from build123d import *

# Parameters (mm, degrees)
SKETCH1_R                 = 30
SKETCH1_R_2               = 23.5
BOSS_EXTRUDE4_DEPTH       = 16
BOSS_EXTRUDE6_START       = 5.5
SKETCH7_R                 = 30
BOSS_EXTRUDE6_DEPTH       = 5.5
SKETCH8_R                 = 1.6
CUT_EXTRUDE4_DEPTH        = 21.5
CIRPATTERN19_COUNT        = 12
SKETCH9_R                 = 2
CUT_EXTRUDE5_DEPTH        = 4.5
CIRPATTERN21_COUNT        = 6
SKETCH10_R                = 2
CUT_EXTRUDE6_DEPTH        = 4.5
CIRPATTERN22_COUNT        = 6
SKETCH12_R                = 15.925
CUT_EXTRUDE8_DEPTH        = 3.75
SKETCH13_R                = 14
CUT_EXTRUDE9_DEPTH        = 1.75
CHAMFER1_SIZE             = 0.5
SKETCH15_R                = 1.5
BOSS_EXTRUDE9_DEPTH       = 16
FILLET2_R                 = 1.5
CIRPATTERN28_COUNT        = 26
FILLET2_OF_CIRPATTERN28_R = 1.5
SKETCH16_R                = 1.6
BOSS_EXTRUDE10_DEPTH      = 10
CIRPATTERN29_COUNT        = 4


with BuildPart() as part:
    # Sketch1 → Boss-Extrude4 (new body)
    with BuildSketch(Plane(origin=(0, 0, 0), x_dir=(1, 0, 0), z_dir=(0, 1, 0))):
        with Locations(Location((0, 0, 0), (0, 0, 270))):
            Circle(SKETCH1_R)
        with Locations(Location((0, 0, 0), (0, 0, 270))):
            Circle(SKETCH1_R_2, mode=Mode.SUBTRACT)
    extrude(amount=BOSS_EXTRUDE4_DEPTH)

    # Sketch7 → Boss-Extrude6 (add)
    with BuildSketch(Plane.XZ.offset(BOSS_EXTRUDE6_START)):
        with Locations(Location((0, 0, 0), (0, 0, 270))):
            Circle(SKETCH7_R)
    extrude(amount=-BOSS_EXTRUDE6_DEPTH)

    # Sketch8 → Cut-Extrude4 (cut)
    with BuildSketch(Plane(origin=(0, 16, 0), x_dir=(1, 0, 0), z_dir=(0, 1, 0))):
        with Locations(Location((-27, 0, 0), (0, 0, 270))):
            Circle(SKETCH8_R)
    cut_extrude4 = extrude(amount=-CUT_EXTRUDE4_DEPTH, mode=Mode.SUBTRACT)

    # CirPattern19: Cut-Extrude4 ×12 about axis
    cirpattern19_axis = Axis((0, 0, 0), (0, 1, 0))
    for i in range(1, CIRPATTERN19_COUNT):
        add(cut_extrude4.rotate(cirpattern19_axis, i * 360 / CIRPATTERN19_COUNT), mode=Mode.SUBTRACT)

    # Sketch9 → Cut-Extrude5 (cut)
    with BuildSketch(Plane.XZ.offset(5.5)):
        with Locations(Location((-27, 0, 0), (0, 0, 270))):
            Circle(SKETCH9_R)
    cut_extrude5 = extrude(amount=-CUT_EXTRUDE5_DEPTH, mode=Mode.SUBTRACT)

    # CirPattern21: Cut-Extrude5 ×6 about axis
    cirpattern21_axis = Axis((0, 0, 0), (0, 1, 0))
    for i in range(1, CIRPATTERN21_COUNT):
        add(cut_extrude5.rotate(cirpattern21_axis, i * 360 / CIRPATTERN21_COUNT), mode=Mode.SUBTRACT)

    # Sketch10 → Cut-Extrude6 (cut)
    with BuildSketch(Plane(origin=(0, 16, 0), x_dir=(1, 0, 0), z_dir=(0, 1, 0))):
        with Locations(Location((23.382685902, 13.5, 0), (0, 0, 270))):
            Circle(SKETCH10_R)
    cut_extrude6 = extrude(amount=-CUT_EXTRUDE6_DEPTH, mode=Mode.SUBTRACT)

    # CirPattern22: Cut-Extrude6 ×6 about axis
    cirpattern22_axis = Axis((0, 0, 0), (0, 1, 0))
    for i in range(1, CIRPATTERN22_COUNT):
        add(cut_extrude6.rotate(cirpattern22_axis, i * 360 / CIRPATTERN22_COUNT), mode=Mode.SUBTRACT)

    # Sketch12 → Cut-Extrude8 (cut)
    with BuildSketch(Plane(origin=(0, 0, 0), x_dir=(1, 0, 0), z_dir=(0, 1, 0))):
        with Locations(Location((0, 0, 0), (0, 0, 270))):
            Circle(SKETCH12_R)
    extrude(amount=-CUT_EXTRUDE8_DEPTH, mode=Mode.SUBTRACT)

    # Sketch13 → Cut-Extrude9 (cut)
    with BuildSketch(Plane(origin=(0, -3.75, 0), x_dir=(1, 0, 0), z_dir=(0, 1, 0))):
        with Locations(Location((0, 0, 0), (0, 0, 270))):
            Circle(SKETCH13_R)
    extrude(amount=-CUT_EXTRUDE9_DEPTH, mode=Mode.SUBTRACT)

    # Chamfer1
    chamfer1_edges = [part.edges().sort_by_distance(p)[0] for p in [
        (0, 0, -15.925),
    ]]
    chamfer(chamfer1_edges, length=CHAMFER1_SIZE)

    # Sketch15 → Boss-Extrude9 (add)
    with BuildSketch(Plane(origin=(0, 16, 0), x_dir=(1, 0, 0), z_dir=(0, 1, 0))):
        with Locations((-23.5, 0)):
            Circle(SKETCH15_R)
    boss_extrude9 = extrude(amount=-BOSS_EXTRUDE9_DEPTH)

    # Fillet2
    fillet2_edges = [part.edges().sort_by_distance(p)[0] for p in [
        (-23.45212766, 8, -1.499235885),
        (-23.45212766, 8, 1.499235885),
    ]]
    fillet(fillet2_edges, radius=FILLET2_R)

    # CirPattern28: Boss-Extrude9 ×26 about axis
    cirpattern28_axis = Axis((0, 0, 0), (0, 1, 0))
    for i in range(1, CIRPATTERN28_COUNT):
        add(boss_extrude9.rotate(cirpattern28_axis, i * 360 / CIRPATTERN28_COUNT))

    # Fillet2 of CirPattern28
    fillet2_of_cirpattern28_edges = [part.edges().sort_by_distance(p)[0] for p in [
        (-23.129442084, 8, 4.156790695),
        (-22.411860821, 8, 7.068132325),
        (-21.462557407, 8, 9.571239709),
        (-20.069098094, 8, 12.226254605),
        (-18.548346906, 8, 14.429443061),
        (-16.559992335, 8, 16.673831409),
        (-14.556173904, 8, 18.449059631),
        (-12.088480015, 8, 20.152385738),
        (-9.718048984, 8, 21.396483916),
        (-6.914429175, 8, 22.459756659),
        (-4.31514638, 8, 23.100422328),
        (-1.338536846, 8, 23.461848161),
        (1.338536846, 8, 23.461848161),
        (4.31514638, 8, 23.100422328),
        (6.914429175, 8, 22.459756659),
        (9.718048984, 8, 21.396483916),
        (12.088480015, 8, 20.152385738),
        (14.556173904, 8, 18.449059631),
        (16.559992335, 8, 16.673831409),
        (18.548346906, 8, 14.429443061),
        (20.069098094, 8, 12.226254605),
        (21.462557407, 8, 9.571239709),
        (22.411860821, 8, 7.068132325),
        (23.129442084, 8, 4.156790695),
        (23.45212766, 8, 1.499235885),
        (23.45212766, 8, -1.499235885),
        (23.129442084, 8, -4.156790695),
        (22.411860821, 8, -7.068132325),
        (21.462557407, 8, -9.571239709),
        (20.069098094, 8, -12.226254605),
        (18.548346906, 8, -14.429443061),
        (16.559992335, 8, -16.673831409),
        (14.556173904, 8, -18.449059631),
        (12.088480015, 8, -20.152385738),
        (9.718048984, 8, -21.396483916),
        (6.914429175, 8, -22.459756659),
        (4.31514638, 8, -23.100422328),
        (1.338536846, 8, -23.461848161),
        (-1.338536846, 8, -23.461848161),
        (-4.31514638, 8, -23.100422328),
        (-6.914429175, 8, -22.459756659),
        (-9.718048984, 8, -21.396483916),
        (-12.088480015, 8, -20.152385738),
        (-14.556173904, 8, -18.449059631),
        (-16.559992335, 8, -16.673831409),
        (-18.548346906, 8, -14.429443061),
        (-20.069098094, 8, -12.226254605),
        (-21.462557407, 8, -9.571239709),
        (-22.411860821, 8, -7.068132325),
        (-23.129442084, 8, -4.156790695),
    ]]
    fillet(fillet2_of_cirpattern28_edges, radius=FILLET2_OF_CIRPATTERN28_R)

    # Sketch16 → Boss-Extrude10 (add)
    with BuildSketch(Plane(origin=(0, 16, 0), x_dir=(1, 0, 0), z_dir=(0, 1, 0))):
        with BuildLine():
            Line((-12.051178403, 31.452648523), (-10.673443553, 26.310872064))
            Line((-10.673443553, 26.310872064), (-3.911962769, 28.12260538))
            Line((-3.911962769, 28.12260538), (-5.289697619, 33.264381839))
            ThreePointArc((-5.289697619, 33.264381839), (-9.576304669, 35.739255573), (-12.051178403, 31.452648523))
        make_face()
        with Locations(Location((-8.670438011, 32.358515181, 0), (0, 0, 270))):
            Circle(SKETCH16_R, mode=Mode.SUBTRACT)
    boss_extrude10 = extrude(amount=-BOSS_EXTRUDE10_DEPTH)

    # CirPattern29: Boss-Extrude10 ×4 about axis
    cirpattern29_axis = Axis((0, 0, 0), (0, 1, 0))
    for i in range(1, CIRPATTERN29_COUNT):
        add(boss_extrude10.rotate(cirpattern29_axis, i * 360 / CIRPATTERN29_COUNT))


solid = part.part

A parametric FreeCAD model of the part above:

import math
import FreeCAD as App
import Part
import Sketcher
Q = App.Units.Quantity


def edges_at(feature, points):
    """Names of the edges that pass closest to the given points."""
    edges = feature.Shape.Edges
    near = lambda p: min(range(len(edges)), key=lambda i: edges[i].distToShape(Part.Vertex(*p))[0])
    return sorted({f"Edge{near(p) + 1}" for p in points})

doc = App.newDocument("Part")
body = doc.addObject("PartDesign::Body", "Body")

# Sketch on XZ plane
sketch1 = body.newObject("Sketcher::SketchObject", "Sketch")
sketch1.AttachmentSupport = (doc.getObject("XZ_Plane"), [""])
sketch1.MapMode = "FlatFace"
sketch1.addGeometry([
    Part.Circle(App.Vector(0, 0, 0), App.Vector(0, 0, 1), 30),
    Part.Circle(App.Vector(0, 0, 0), App.Vector(0, 0, 1), 24),
], False)
sketch1.addConstraint([
    Sketcher.Constraint("Coincident", 0, 3, -1, 1),
    Sketcher.Constraint("Coincident", 1, 3, -1, 1),
    Sketcher.Constraint("Diameter", 0, Q("60 mm")),
    Sketcher.Constraint("Diameter", 1, Q("47 mm")),
])
pad1 = body.newObject("PartDesign::Pad", "Pad")
pad1.Profile = sketch1
pad1.Length = 16
pad1.Reversed = True

# Sketch on XZ plane
sketch2 = body.newObject("Sketcher::SketchObject", "Sketch001")
sketch2.AttachmentSupport = (doc.getObject("XZ_Plane"), [""])
sketch2.MapMode = "FlatFace"
sketch2.AttachmentOffset = App.Placement(App.Vector(0, 0, 5.5), App.Rotation())
sketch2.addGeometry(Part.Circle(App.Vector(0, 0, 0), App.Vector(0, 0, 1), 30), False)
sketch2.addConstraint([
    Sketcher.Constraint("Coincident", 0, 3, -1, 1),
    Sketcher.Constraint("Diameter", 0, Q("60 mm")),
])
pad2 = body.newObject("PartDesign::Pad", "Pad001")
pad2.Profile = sketch2
pad2.Length = 5.5
pad2.Reversed = True

# Sketch on XZ plane
sketch3 = body.newObject("Sketcher::SketchObject", "Sketch002")
sketch3.AttachmentSupport = (doc.getObject("XZ_Plane"), [""])
sketch3.MapMode = "FlatFace"
sketch3.AttachmentOffset = App.Placement(App.Vector(0, 0, -16), App.Rotation())
sketch3.addGeometry(Part.Circle(App.Vector(-27, 0, 0), App.Vector(0, 0, 1), 1.6), False)
sketch3.addConstraint([
    Sketcher.Constraint("PointOnObject", 0, 3, -1),
    Sketcher.Constraint("Diameter", 0, Q("3.2 mm")),
    Sketcher.Constraint("DistanceX", 0, 3, -1, 1, Q("27 mm")),
])
pocket1 = body.newObject("PartDesign::Pocket", "Pocket")
pocket1.Profile = sketch3
pocket1.Length = 21.5
pocket1.Reversed = True
doc.recompute()

polarpattern = body.newObject("PartDesign::PolarPattern", "PolarPattern")
polarpattern.Originals = [pocket1]
polarpattern.Axis = (doc.getObject("Y_Axis"), [""])
polarpattern.Angle = 360
polarpattern.Occurrences = 12
body.Tip = polarpattern

# Sketch on XZ plane
sketch4 = body.newObject("Sketcher::SketchObject", "Sketch003")
sketch4.AttachmentSupport = (doc.getObject("XZ_Plane"), [""])
sketch4.MapMode = "FlatFace"
sketch4.AttachmentOffset = App.Placement(App.Vector(0, 0, 5.5), App.Rotation())
sketch4.addGeometry(Part.Circle(App.Vector(-27, 0, 0), App.Vector(0, 0, 1), 2), False)
sketch4.addConstraint([
    Sketcher.Constraint("PointOnObject", 0, 3, -1),
    Sketcher.Constraint("Diameter", 0, Q("4 mm")),
    Sketcher.Constraint("DistanceX", 0, 3, -1, 1, Q("27 mm")),
])
pocket2 = body.newObject("PartDesign::Pocket", "Pocket001")
pocket2.Profile = sketch4
pocket2.Length = 4.5
doc.recompute()

polarpattern2 = body.newObject("PartDesign::PolarPattern", "PolarPattern001")
polarpattern2.Originals = [pocket2]
polarpattern2.Axis = (doc.getObject("Y_Axis"), [""])
polarpattern2.Angle = 360
polarpattern2.Occurrences = 6
body.Tip = polarpattern2

# Sketch on XZ plane
sketch5 = body.newObject("Sketcher::SketchObject", "Sketch004")
sketch5.AttachmentSupport = (doc.getObject("XZ_Plane"), [""])
sketch5.MapMode = "FlatFace"
sketch5.AttachmentOffset = App.Placement(App.Vector(0, 0, -16), App.Rotation())
sketch5.addGeometry(Part.Circle(App.Vector(23.4, -13.5, 0), App.Vector(0, 0, 1), 2), False)
sketch5.addConstraint([
    Sketcher.Constraint("Diameter", 0, Q("4 mm")),
    Sketcher.Constraint("DistanceY", 0, 3, -1, 1, Q("13.5 mm")),
    Sketcher.Constraint("DistanceX", -1, 1, 0, 3, Q("23.382686 mm")),
])
pocket3 = body.newObject("PartDesign::Pocket", "Pocket002")
pocket3.Profile = sketch5
pocket3.Length = 4.5
pocket3.Reversed = True
doc.recompute()

polarpattern3 = body.newObject("PartDesign::PolarPattern", "PolarPattern002")
polarpattern3.Originals = [pocket3]
polarpattern3.Axis = (doc.getObject("Y_Axis"), [""])
polarpattern3.Angle = 360
polarpattern3.Occurrences = 6
body.Tip = polarpattern3

# Sketch on XZ plane
sketch6 = body.newObject("Sketcher::SketchObject", "Sketch005")
sketch6.AttachmentSupport = (doc.getObject("XZ_Plane"), [""])
sketch6.MapMode = "FlatFace"
sketch6.addGeometry(Part.Circle(App.Vector(0, 0, 0), App.Vector(0, 0, 1), 16), False)
sketch6.addConstraint([
    Sketcher.Constraint("Coincident", 0, 3, -1, 1),
    Sketcher.Constraint("Diameter", 0, Q("31.85 mm")),
])
pocket4 = body.newObject("PartDesign::Pocket", "Pocket003")
pocket4.Profile = sketch6
pocket4.Length = 3.75
pocket4.Reversed = True

# Sketch on XZ plane
sketch7 = body.newObject("Sketcher::SketchObject", "Sketch006")
sketch7.AttachmentSupport = (doc.getObject("XZ_Plane"), [""])
sketch7.MapMode = "FlatFace"
sketch7.AttachmentOffset = App.Placement(App.Vector(0, 0, 3.75), App.Rotation())
sketch7.addGeometry(Part.Circle(App.Vector(0, 0, 0), App.Vector(0, 0, 1), 14), False)
sketch7.addConstraint([
    Sketcher.Constraint("Coincident", 0, 3, -1, 1),
    Sketcher.Constraint("Diameter", 0, Q("28 mm")),
])
pocket5 = body.newObject("PartDesign::Pocket", "Pocket004")
pocket5.Profile = sketch7
pocket5.Length = 1.75
pocket5.Reversed = True
doc.recompute()

chamfer = body.newObject("PartDesign::Chamfer", "Chamfer")
chamfer.Base = (pocket5, edges_at(pocket5, [(0, 0, -15.925)]))
chamfer.Size = 0.5

# Sketch on XZ plane
sketch8 = body.newObject("Sketcher::SketchObject", "Sketch007")
sketch8.AttachmentSupport = (doc.getObject("XZ_Plane"), [""])
sketch8.MapMode = "FlatFace"
sketch8.AttachmentOffset = App.Placement(App.Vector(0, 0, -16), App.Rotation())
sketch8.addGeometry(Part.Circle(App.Vector(-23.5, 0, 0), App.Vector(0, 0, 1), 1.5), False)
sketch8.addConstraint([
    Sketcher.Constraint("PointOnObject", 0, 3, -1),
    Sketcher.Constraint("Diameter", 0, Q("3 mm")),
    Sketcher.Constraint("DistanceX", 0, 3, -1, 1, Q("23.5 mm")),
])
pad3 = body.newObject("PartDesign::Pad", "Pad002")
pad3.Profile = sketch8
pad3.Length = 16
doc.recompute()

fillet = body.newObject("PartDesign::Fillet", "Fillet")
fillet.Base = (pad3, edges_at(pad3, [(-23.452, 8, -1.499), (-23.452, 8, 1.499)]))
fillet.Radius = 1.5
doc.recompute()

polarpattern4 = body.newObject("PartDesign::PolarPattern", "PolarPattern003")
polarpattern4.Originals = [pad3]
polarpattern4.Axis = (doc.getObject("Y_Axis"), [""])
polarpattern4.Angle = 360
polarpattern4.Occurrences = 26
body.Tip = polarpattern4
doc.recompute()

fillet2 = body.newObject("PartDesign::Fillet", "Fillet001")
fillet2.Base = (polarpattern4, edges_at(polarpattern4, [
    (-23.129, 8, 4.157),
    (-22.412, 8, 7.068),
    (-21.463, 8, 9.571),
    (-20.069, 8, 12.226),
    (-18.548, 8, 14.429),
    (-16.56, 8, 16.674),
    (-14.556, 8, 18.449),
    (-12.088, 8, 20.152),
    (-9.718, 8, 21.396),
    (-6.914, 8, 22.46),
    (-4.315, 8, 23.1),
    (-1.339, 8, 23.462),
    (1.339, 8, 23.462),
    (4.315, 8, 23.1),
    (6.914, 8, 22.46),
    (9.718, 8, 21.396),
    (12.088, 8, 20.152),
    (14.556, 8, 18.449),
    (16.56, 8, 16.674),
    (18.548, 8, 14.429),
    (20.069, 8, 12.226),
    (21.463, 8, 9.571),
    (22.412, 8, 7.068),
    (23.129, 8, 4.157),
    (23.452, 8, 1.499),
    (23.452, 8, -1.499),
    (23.129, 8, -4.157),
    (22.412, 8, -7.068),
    (21.463, 8, -9.571),
    (20.069, 8, -12.226),
    (18.548, 8, -14.429),
    (16.56, 8, -16.674),
    (14.556, 8, -18.449),
    (12.088, 8, -20.152),
    (9.718, 8, -21.396),
    (6.914, 8, -22.46),
    (4.315, 8, -23.1),
    (1.339, 8, -23.462),
    (-1.339, 8, -23.462),
    (-4.315, 8, -23.1),
    (-6.914, 8, -22.46),
    (-9.718, 8, -21.396),
    (-12.088, 8, -20.152),
    (-14.556, 8, -18.449),
    (-16.56, 8, -16.674),
    (-18.548, 8, -14.429),
    (-20.069, 8, -12.226),
    (-21.463, 8, -9.571),
    (-22.412, 8, -7.068),
    (-23.129, 8, -4.157),
]))
fillet2.Radius = 1.5

# Sketch on XZ plane
sketch9 = body.newObject("Sketcher::SketchObject", "Sketch008")
sketch9.AttachmentSupport = (doc.getObject("XZ_Plane"), [""])
sketch9.MapMode = "FlatFace"
sketch9.AttachmentOffset = App.Placement(App.Vector(0, 0, -16), App.Rotation())
sketch9.addGeometry([
    Part.LineSegment(App.Vector(-12.1, -31.5, 0), App.Vector(-10.7, -26.3, 0)),  # 0
    Part.LineSegment(App.Vector(-10.7, -26.3, 0), App.Vector(-3.9, -28.1, 0)),  # 1
    Part.LineSegment(App.Vector(-3.9, -28.1, 0), App.Vector(-5.3, -33.3, 0)),  # 2
    Part.ArcOfCircle(Part.Circle(App.Vector(-8.7, -32.4, 0), App.Vector(0, 0, 1), 3.5), math.radians(165), math.radians(345)),  # 3
    Part.Circle(App.Vector(-8.7, -32.4, 0), App.Vector(0, 0, 1), 1.6),  # 4
], False)
sketch9.addConstraint([
    Sketcher.Constraint("Coincident", 0, 2, 1, 1),
    Sketcher.Constraint("Coincident", 1, 2, 2, 1),
    Sketcher.Constraint("Tangent", 2, 2, 3, 2),
    Sketcher.Constraint("Tangent", 3, 1, 0, 1),
    Sketcher.Constraint("Coincident", 4, 3, 3, 3),
    Sketcher.Constraint("Perpendicular", 0, 1),
    Sketcher.Constraint("Perpendicular", 1, 2),
    Sketcher.Constraint("Diameter", 4, Q("3.2 mm")),
    Sketcher.Constraint("Radius", 3, Q("3.5 mm")),
    Sketcher.Constraint("Angle", 0, Q("75 deg")),
    Sketcher.Constraint("Distance", 0, Q("5.323159 mm")),
    Sketcher.Constraint("DistanceX", 3, 3, -1, 1, Q("8.670438 mm")),
    Sketcher.Constraint("DistanceY", 2, 2, -1, 1, Q("33.264382 mm")),
])
pad4 = body.newObject("PartDesign::Pad", "Pad003")
pad4.Profile = sketch9
pad4.Length = 10
doc.recompute()

polarpattern5 = body.newObject("PartDesign::PolarPattern", "PolarPattern004")
polarpattern5.Originals = [pad4]
polarpattern5.Axis = (doc.getObject("Y_Axis"), [""])
polarpattern5.Angle = 360
polarpattern5.Occurrences = 4
body.Tip = polarpattern5

doc.recompute()
